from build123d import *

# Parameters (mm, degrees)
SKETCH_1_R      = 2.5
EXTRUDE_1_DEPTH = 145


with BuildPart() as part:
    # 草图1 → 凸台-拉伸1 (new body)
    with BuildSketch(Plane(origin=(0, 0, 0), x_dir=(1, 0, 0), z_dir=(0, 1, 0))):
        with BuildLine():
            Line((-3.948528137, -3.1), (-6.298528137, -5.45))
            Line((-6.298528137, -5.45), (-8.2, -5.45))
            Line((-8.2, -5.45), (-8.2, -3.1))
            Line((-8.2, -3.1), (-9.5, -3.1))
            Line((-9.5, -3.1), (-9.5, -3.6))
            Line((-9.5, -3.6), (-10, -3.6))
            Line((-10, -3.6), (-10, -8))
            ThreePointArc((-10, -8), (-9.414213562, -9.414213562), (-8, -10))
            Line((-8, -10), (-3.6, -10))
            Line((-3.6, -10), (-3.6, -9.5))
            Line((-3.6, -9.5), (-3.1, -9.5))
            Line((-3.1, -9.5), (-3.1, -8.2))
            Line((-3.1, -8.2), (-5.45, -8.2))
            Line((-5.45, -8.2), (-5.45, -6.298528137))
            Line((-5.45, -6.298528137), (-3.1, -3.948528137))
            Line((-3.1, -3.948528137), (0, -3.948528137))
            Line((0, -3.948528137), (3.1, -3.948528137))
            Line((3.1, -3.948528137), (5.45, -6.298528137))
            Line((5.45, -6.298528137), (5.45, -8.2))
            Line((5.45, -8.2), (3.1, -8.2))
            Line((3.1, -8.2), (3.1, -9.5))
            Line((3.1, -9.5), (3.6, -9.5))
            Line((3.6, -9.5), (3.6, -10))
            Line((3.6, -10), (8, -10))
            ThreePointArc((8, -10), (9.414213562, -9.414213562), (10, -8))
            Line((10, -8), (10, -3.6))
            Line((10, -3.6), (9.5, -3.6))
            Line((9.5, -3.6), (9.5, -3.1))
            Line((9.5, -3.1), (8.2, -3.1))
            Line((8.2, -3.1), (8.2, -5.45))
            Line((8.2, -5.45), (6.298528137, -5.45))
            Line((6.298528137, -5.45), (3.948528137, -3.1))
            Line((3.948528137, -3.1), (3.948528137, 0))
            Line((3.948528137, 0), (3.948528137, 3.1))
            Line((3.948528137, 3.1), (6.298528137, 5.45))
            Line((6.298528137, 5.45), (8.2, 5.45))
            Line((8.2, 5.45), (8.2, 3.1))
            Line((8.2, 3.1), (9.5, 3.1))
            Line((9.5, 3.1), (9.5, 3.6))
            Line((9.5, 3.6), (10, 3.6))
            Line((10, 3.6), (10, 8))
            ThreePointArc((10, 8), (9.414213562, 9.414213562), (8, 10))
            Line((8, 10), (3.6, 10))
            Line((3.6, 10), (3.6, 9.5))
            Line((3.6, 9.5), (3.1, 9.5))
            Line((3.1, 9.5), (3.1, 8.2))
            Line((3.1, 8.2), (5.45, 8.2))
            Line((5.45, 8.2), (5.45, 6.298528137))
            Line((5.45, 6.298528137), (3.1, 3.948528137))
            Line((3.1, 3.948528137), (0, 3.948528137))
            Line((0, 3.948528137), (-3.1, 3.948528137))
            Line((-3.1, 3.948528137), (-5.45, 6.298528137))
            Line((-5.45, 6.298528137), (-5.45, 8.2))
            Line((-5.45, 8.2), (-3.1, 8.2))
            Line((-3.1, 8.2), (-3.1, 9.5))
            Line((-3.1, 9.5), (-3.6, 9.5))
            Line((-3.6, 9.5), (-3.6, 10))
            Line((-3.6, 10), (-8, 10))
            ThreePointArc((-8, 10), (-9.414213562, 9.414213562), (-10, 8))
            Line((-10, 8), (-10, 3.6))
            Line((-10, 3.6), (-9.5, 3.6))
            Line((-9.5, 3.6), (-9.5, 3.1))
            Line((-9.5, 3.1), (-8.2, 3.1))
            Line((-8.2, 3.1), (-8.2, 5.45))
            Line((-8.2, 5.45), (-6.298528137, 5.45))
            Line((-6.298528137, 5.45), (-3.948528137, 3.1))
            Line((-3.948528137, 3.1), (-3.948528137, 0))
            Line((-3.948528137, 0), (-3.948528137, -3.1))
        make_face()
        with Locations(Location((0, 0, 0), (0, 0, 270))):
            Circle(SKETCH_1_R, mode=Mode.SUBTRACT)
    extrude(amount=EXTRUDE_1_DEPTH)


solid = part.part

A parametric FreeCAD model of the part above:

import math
import FreeCAD as App
import Part
import Sketcher

V = App.Vector
Q = App.Units.Quantity

doc = App.newDocument("Part")
body = doc.addObject("PartDesign::Body", "Body")

sketch1 = body.newObject("Sketcher::SketchObject", "Sketch")
sketch1.AttachmentSupport = (doc.getObject("XZ_Plane"), [""])
sketch1.MapMode = "FlatFace"
sketch1.addGeometry([
    Part.LineSegment(V(-3.9, 3.1, 0), V(-6.3, 5.5, 0)),
    Part.LineSegment(V(-6.3, 5.5, 0), V(-8.2, 5.5, 0)),
    Part.LineSegment(V(-8.2, 5.5, 0), V(-8.2, 3.1, 0)),
    Part.LineSegment(V(-8.2, 3.1, 0), V(-9.5, 3.1, 0)),
    Part.LineSegment(V(-9.5, 3.1, 0), V(-9.5, 3.6, 0)),
    Part.LineSegment(V(-9.5, 3.6, 0), V(-10, 3.6, 0)),
    Part.LineSegment(V(-10, 3.6, 0), V(-10, 8, 0)),
    Part.ArcOfCircle(Part.Circle(V(-8, 8, 0), V(0, 0, 1), 2), math.radians(90), math.radians(180)),
    Part.LineSegment(V(-8, 10, 0), V(-3.6, 10, 0)),
    Part.LineSegment(V(-3.6, 10, 0), V(-3.6, 9.5, 0)),
    Part.LineSegment(V(-3.6, 9.5, 0), V(-3.1, 9.5, 0)),
    Part.LineSegment(V(-3.1, 9.5, 0), V(-3.1, 8.2, 0)),
    Part.LineSegment(V(-3.1, 8.2, 0), V(-5.5, 8.2, 0)),
    Part.LineSegment(V(-5.5, 8.2, 0), V(-5.5, 6.3, 0)),
    Part.LineSegment(V(-5.5, 6.3, 0), V(-3.1, 3.9, 0)),
    Part.LineSegment(V(-3.1, 3.9, 0), V(3.1, 3.9, 0)),
    Part.LineSegment(V(3.1, 3.9, 0), V(5.5, 6.3, 0)),
    Part.LineSegment(V(5.5, 6.3, 0), V(5.5, 8.2, 0)),
    Part.LineSegment(V(5.5, 8.2, 0), V(3.1, 8.2, 0)),
    Part.LineSegment(V(3.1, 8.2, 0), V(3.1, 9.5, 0)),
    Part.LineSegment(V(3.1, 9.5, 0), V(3.6, 9.5, 0)),
    Part.LineSegment(V(3.6, 9.5, 0), V(3.6, 10, 0)),
    Part.LineSegment(V(3.6, 10, 0), V(8, 10, 0)),
    Part.ArcOfCircle(Part.Circle(V(8, 8, 0), V(0, 0, 1), 2), math.radians(0), math.radians(90)),
    Part.LineSegment(V(10, 8, 0), V(10, 3.6, 0)),
    Part.LineSegment(V(10, 3.6, 0), V(9.5, 3.6, 0)),
    Part.LineSegment(V(9.5, 3.6, 0), V(9.5, 3.1, 0)),
    Part.LineSegment(V(9.5, 3.1, 0), V(8.2, 3.1, 0)),
    Part.LineSegment(V(8.2, 3.1, 0), V(8.2, 5.5, 0)),
    Part.LineSegment(V(8.2, 5.5, 0), V(6.3, 5.5, 0)),
    Part.LineSegment(V(6.3, 5.5, 0), V(3.9, 3.1, 0)),
    Part.LineSegment(V(3.9, 3.1, 0), V(3.9, -3.1, 0)),
    Part.LineSegment(V(3.9, -3.1, 0), V(6.3, -5.5, 0)),
    Part.LineSegment(V(6.3, -5.5, 0), V(8.2, -5.5, 0)),
    Part.LineSegment(V(8.2, -5.5, 0), V(8.2, -3.1, 0)),
    Part.LineSegment(V(8.2, -3.1, 0), V(9.5, -3.1, 0)),
    Part.LineSegment(V(9.5, -3.1, 0), V(9.5, -3.6, 0)),
    Part.LineSegment(V(9.5, -3.6, 0), V(10, -3.6, 0)),
    Part.LineSegment(V(10, -3.6, 0), V(10, -8, 0)),
    Part.ArcOfCircle(Part.Circle(V(8, -8, 0), V(0, 0, 1), 2), math.radians(-90), math.radians(0)),
    Part.LineSegment(V(8, -10, 0), V(3.6, -10, 0)),
    Part.LineSegment(V(3.6, -10, 0), V(3.6, -9.5, 0)),
    Part.LineSegment(V(3.6, -9.5, 0), V(3.1, -9.5, 0)),
    Part.LineSegment(V(3.1, -9.5, 0), V(3.1, -8.2, 0)),
    Part.LineSegment(V(3.1, -8.2, 0), V(5.5, -8.2, 0)),
    Part.LineSegment(V(5.5, -8.2, 0), V(5.5, -6.3, 0)),
    Part.LineSegment(V(5.5, -6.3, 0), V(3.1, -3.9, 0)),
    Part.LineSegment(V(3.1, -3.9, 0), V(-3.1, -3.9, 0)),
    Part.LineSegment(V(-3.1, -3.9, 0), V(-5.5, -6.3, 0)),
    Part.LineSegment(V(-5.5, -6.3, 0), V(-5.5, -8.2, 0)),
    Part.LineSegment(V(-5.5, -8.2, 0), V(-3.1, -8.2, 0)),
    Part.LineSegment(V(-3.1, -8.2, 0), V(-3.1, -9.5, 0)),
    Part.LineSegment(V(-3.1, -9.5, 0), V(-3.6, -9.5, 0)),
    Part.LineSegment(V(-3.6, -9.5, 0), V(-3.6, -10, 0)),
    Part.LineSegment(V(-3.6, -10, 0), V(-8, -10, 0)),
    Part.ArcOfCircle(Part.Circle(V(-8, -8, 0), V(0, 0, 1), 2), math.radians(-180), math.radians(-90)),
    Part.LineSegment(V(-10, -8, 0), V(-10, -3.6, 0)),
    Part.LineSegment(V(-10, -3.6, 0), V(-9.5, -3.6, 0)),
    Part.LineSegment(V(-9.5, -3.6, 0), V(-9.5, -3.1, 0)),
    Part.LineSegment(V(-9.5, -3.1, 0), V(-8.2, -3.1, 0)),
    Part.LineSegment(V(-8.2, -3.1, 0), V(-8.2, -5.5, 0)),
    Part.LineSegment(V(-8.2, -5.5, 0), V(-6.3, -5.5, 0)),
    Part.LineSegment(V(-6.3, -5.5, 0), V(-3.9, -3.1, 0)),
    Part.LineSegment(V(-3.9, -3.1, 0), V(-3.9, 3.1, 0)),
    Part.Circle(V(0, 0, 0), V(0, 0, 1), 2.5),
], False)
sketch1.addConstraint([
    Sketcher.Constraint("Coincident", 0, 2, 1, 1),
    Sketcher.Constraint("Coincident", 1, 2, 2, 1),
    Sketcher.Constraint("Coincident", 2, 2, 3, 1),
    Sketcher.Constraint("Coincident", 3, 2, 4, 1),
    Sketcher.Constraint("Coincident", 4, 2, 5, 1),
    Sketcher.Constraint("Coincident", 5, 2, 6, 1),
    Sketcher.Constraint("Tangent", 6, 2, 7, 2),
    Sketcher.Constraint("Tangent", 7, 1, 8, 1),
    Sketcher.Constraint("Coincident", 8, 2, 9, 1),
    Sketcher.Constraint("Coincident", 9, 2, 10, 1),
    Sketcher.Constraint("Coincident", 10, 2, 11, 1),
    Sketcher.Constraint("Coincident", 11, 2, 12, 1),
    Sketcher.Constraint("Coincident", 12, 2, 13, 1),
    Sketcher.Constraint("Coincident", 13, 2, 14, 1),
    Sketcher.Constraint("Coincident", 14, 2, 15, 1),
    Sketcher.Constraint("Coincident", 15, 2, 16, 1),
    Sketcher.Constraint("Coincident", 16, 2, 17, 1),
    Sketcher.Constraint("Coincident", 17, 2, 18, 1),
    Sketcher.Constraint("Coincident", 18, 2, 19, 1),
    Sketcher.Constraint("Coincident", 19, 2, 20, 1),
    Sketcher.Constraint("Coincident", 20, 2, 21, 1),
    Sketcher.Constraint("Coincident", 21, 2, 22, 1),
    Sketcher.Constraint("Tangent", 22, 2, 23, 2),
    Sketcher.Constraint("Tangent", 23, 1, 24, 1),
    Sketcher.Constraint("Coincident", 24, 2, 25, 1),
    Sketcher.Constraint("Coincident", 25, 2, 26, 1),
    Sketcher.Constraint("Coincident", 26, 2, 27, 1),
    Sketcher.Constraint("Coincident", 27, 2, 28, 1),
    Sketcher.Constraint("Coincident", 28, 2, 29, 1),
    Sketcher.Constraint("Coincident", 29, 2, 30, 1),
    Sketcher.Constraint("Coincident", 30, 2, 31, 1),
    Sketcher.Constraint("Coincident", 31, 2, 32, 1),
    Sketcher.Constraint("Coincident", 32, 2, 33, 1),
    Sketcher.Constraint("Coincident", 33, 2, 34, 1),
    Sketcher.Constraint("Coincident", 34, 2, 35, 1),
    Sketcher.Constraint("Coincident", 35, 2, 36, 1),
    Sketcher.Constraint("Coincident", 36, 2, 37, 1),
    Sketcher.Constraint("Coincident", 37, 2, 38, 1),
    Sketcher.Constraint("Tangent", 38, 2, 39, 2),
    Sketcher.Constraint("Tangent", 39, 1, 40, 1),
    Sketcher.Constraint("Coincident", 40, 2, 41, 1),
    Sketcher.Constraint("Coincident", 41, 2, 42, 1),
    Sketcher.Constraint("Coincident", 42, 2, 43, 1),
    Sketcher.Constraint("Coincident", 43, 2, 44, 1),
    Sketcher.Constraint("Coincident", 44, 2, 45, 1),
    Sketcher.Constraint("Coincident", 45, 2, 46, 1),
    Sketcher.Constraint("Coincident", 46, 2, 47, 1),
    Sketcher.Constraint("Coincident", 47, 2, 48, 1),
    Sketcher.Constraint("Coincident", 48, 2, 49, 1),
    Sketcher.Constraint("Coincident", 49, 2, 50, 1),
    Sketcher.Constraint("Coincident", 50, 2, 51, 1),
    Sketcher.Constraint("Coincident", 51, 2, 52, 1),
    Sketcher.Constraint("Coincident", 52, 2, 53, 1),
    Sketcher.Constraint("Coincident", 53, 2, 54, 1),
    Sketcher.Constraint("Tangent", 54, 2, 55, 2),
    Sketcher.Constraint("Tangent", 55, 1, 56, 1),
    Sketcher.Constraint("Coincident", 56, 2, 57, 1),
    Sketcher.Constraint("Coincident", 57, 2, 58, 1),
    Sketcher.Constraint("Coincident", 58, 2, 59, 1),
    Sketcher.Constraint("Coincident", 59, 2, 60, 1),
    Sketcher.Constraint("Coincident", 60, 2, 61, 1),
    Sketcher.Constraint("Coincident", 61, 2, 62, 1),
    Sketcher.Constraint("Coincident", 62, 2, 63, 1),
    Sketcher.Constraint("Coincident", 63, 2, 0, 1),
    Sketcher.Constraint("Horizontal", 1),
    Sketcher.Constraint("Vertical", 2),
    Sketcher.Constraint("Horizontal", 3),
    Sketcher.Constraint("Vertical", 4),
    Sketcher.Constraint("Horizontal", 5),
    Sketcher.Constraint("Vertical", 6),
    Sketcher.Constraint("Horizontal", 8),
    Sketcher.Constraint("Vertical", 9),
    Sketcher.Constraint("Horizontal", 10),
    Sketcher.Constraint("Vertical", 11),
    Sketcher.Constraint("Horizontal", 12),
    Sketcher.Constraint("Vertical", 13),
    Sketcher.Constraint("Horizontal", 15),
    Sketcher.Constraint("Vertical", 17),
    Sketcher.Constraint("Horizontal", 18),
    Sketcher.Constraint("Vertical", 19),
    Sketcher.Constraint("Horizontal", 20),
    Sketcher.Constraint("Vertical", 21),
    Sketcher.Constraint("Horizontal", 22),
    Sketcher.Constraint("Vertical", 24),
    Sketcher.Constraint("Horizontal", 25),
    Sketcher.Constraint("Vertical", 26),
    Sketcher.Constraint("Horizontal", 27),
    Sketcher.Constraint("Vertical", 28),
    Sketcher.Constraint("Horizontal", 29),
    Sketcher.Constraint("Vertical", 31),
    Sketcher.Constraint("Horizontal", 33),
    Sketcher.Constraint("Vertical", 34),
    Sketcher.Constraint("Horizontal", 35),
    Sketcher.Constraint("Vertical", 36),
    Sketcher.Constraint("Horizontal", 37),
    Sketcher.Constraint("Vertical", 38),
    Sketcher.Constraint("Horizontal", 40),
    Sketcher.Constraint("Vertical", 41),
    Sketcher.Constraint("Horizontal", 42),
    Sketcher.Constraint("Vertical", 43),
    Sketcher.Constraint("Horizontal", 44),
    Sketcher.Constraint("Vertical", 45),
    Sketcher.Constraint("Horizontal", 47),
    Sketcher.Constraint("Vertical", 49),
    Sketcher.Constraint("Horizontal", 50),
    Sketcher.Constraint("Vertical", 51),
    Sketcher.Constraint("Horizontal", 52),
    Sketcher.Constraint("Vertical", 53),
    Sketcher.Constraint("Horizontal", 54),
    Sketcher.Constraint("Vertical", 56),
    Sketcher.Constraint("Horizontal", 57),
    Sketcher.Constraint("Vertical", 58),
    Sketcher.Constraint("Horizontal", 59),
    Sketcher.Constraint("Vertical", 60),
    Sketcher.Constraint("Horizontal", 61),
    Sketcher.Constraint("Vertical", 63),
    Sketcher.Constraint("Coincident", 64, 3, -1, 1),
    Sketcher.Constraint("Equal", 7, 23),
    Sketcher.Constraint("Equal", 23, 39),
    Sketcher.Constraint("Equal", 39, 55),
    Sketcher.Constraint("Symmetric", 7, 3, 39, 3, -1, 1),
    Sketcher.Constraint("Symmetric", 23, 3, 55, 3, -1, 1),
    Sketcher.Constraint("Symmetric", 0, 2, 32, 2, -1, 1),
    Sketcher.Constraint("Symmetric", 2, 2, 34, 2, -1, 1),
    Sketcher.Constraint("Symmetric", 4, 2, 36, 2, -1, 1),
    Sketcher.Constraint("Symmetric", 9, 2, 41, 2, -1, 1),
    Sketcher.Constraint("Symmetric", 11, 2, 43, 2, -1, 1),
    Sketcher.Constraint("Symmetric", 13, 2, 45, 2, -1, 1),
    Sketcher.Constraint("Symmetric", 14, 2, 46, 2, -1, 1),
    Sketcher.Constraint("Symmetric", 16, 2, 48, 2, -1, 1),
    Sketcher.Constraint("Symmetric", 18, 2, 50, 2, -1, 1),
    Sketcher.Constraint("Symmetric", 20, 2, 52, 2, -1, 1),
    Sketcher.Constraint("Symmetric", 25, 2, 57, 2, -1, 1),
    Sketcher.Constraint("Symmetric", 27, 2, 59, 2, -1, 1),
    Sketcher.Constraint("Symmetric", 29, 2, 61, 2, -1, 1),
    Sketcher.Constraint("Symmetric", 30, 2, 62, 2, -1, 1),
    Sketcher.Constraint("Symmetric", 7, 3, 23, 3, -2),
    Sketcher.Constraint("Symmetric", 13, 2, 16, 2, -2),
    Sketcher.Constraint("Symmetric", 11, 2, 18, 2, -2),
    Sketcher.Constraint("Symmetric", 9, 2, 20, 2, -2),
    Sketcher.Constraint("Symmetric", 4, 2, 25, 2, -2),
    Sketcher.Constraint("Symmetric", 2, 2, 27, 2, -2),
    Sketcher.Constraint("Symmetric", 0, 2, 29, 2, -2),
    Sketcher.Constraint("Parallel", 0, 14),
    Sketcher.Constraint("Perpendicular", 14, 16),
    Sketcher.Constraint("Parallel", 16, 30),
    Sketcher.Constraint("Perpendicular", 30, 32),
    Sketcher.Constraint("Perpendicular", 46, 48),
    Sketcher.Constraint("Horizontal", 27, 2, 30, 2),
    Sketcher.Constraint("Horizontal", 31, 2, 34, 2),
    Sketcher.Constraint("Vertical", 11, 2, 14, 2),
    Sketcher.Constraint("Equal", 5, 10),
    Sketcher.Constraint("Equal", 50, 2),
    Sketcher.Constraint("Equal", 57, 4),
    Sketcher.Constraint("Equal", 54, 6),
    Sketcher.Constraint("Equal", 4, 9),
    Sketcher.Constraint("Equal", 59, 11),
    Sketcher.Constraint("Equal", 61, 13),
    Sketcher.Constraint("Equal", 47, 31),
    Sketcher.Constraint("Diameter", 64, Q("5 mm")),
    Sketcher.Constraint("Radius", 7, Q("2 mm")),
    Sketcher.Constraint("DistanceX", 3, 2, 3, 1, Q("1.3 mm")),
    Sketcher.Constraint("DistanceX", 5, 2, 5, 1, Q("0.5 mm")),
    Sketcher.Constraint("DistanceX", 8, 1, 8, 2, Q("4.4 mm")),
    Sketcher.Constraint("DistanceX", 15, 1, 15, 2, Q("6.2 mm")),
    Sketcher.Constraint("DistanceX", 12, 2, 12, 1, Q("2.35 mm")),
    Sketcher.Constraint("DistanceX", 1, 2, 1, 1, Q("1.901472 mm")),
])
pad1 = body.newObject("PartDesign::Pad", "Pad")
pad1.Profile = sketch1
pad1.Length = 145
pad1.Reversed = True

doc.recompute()
